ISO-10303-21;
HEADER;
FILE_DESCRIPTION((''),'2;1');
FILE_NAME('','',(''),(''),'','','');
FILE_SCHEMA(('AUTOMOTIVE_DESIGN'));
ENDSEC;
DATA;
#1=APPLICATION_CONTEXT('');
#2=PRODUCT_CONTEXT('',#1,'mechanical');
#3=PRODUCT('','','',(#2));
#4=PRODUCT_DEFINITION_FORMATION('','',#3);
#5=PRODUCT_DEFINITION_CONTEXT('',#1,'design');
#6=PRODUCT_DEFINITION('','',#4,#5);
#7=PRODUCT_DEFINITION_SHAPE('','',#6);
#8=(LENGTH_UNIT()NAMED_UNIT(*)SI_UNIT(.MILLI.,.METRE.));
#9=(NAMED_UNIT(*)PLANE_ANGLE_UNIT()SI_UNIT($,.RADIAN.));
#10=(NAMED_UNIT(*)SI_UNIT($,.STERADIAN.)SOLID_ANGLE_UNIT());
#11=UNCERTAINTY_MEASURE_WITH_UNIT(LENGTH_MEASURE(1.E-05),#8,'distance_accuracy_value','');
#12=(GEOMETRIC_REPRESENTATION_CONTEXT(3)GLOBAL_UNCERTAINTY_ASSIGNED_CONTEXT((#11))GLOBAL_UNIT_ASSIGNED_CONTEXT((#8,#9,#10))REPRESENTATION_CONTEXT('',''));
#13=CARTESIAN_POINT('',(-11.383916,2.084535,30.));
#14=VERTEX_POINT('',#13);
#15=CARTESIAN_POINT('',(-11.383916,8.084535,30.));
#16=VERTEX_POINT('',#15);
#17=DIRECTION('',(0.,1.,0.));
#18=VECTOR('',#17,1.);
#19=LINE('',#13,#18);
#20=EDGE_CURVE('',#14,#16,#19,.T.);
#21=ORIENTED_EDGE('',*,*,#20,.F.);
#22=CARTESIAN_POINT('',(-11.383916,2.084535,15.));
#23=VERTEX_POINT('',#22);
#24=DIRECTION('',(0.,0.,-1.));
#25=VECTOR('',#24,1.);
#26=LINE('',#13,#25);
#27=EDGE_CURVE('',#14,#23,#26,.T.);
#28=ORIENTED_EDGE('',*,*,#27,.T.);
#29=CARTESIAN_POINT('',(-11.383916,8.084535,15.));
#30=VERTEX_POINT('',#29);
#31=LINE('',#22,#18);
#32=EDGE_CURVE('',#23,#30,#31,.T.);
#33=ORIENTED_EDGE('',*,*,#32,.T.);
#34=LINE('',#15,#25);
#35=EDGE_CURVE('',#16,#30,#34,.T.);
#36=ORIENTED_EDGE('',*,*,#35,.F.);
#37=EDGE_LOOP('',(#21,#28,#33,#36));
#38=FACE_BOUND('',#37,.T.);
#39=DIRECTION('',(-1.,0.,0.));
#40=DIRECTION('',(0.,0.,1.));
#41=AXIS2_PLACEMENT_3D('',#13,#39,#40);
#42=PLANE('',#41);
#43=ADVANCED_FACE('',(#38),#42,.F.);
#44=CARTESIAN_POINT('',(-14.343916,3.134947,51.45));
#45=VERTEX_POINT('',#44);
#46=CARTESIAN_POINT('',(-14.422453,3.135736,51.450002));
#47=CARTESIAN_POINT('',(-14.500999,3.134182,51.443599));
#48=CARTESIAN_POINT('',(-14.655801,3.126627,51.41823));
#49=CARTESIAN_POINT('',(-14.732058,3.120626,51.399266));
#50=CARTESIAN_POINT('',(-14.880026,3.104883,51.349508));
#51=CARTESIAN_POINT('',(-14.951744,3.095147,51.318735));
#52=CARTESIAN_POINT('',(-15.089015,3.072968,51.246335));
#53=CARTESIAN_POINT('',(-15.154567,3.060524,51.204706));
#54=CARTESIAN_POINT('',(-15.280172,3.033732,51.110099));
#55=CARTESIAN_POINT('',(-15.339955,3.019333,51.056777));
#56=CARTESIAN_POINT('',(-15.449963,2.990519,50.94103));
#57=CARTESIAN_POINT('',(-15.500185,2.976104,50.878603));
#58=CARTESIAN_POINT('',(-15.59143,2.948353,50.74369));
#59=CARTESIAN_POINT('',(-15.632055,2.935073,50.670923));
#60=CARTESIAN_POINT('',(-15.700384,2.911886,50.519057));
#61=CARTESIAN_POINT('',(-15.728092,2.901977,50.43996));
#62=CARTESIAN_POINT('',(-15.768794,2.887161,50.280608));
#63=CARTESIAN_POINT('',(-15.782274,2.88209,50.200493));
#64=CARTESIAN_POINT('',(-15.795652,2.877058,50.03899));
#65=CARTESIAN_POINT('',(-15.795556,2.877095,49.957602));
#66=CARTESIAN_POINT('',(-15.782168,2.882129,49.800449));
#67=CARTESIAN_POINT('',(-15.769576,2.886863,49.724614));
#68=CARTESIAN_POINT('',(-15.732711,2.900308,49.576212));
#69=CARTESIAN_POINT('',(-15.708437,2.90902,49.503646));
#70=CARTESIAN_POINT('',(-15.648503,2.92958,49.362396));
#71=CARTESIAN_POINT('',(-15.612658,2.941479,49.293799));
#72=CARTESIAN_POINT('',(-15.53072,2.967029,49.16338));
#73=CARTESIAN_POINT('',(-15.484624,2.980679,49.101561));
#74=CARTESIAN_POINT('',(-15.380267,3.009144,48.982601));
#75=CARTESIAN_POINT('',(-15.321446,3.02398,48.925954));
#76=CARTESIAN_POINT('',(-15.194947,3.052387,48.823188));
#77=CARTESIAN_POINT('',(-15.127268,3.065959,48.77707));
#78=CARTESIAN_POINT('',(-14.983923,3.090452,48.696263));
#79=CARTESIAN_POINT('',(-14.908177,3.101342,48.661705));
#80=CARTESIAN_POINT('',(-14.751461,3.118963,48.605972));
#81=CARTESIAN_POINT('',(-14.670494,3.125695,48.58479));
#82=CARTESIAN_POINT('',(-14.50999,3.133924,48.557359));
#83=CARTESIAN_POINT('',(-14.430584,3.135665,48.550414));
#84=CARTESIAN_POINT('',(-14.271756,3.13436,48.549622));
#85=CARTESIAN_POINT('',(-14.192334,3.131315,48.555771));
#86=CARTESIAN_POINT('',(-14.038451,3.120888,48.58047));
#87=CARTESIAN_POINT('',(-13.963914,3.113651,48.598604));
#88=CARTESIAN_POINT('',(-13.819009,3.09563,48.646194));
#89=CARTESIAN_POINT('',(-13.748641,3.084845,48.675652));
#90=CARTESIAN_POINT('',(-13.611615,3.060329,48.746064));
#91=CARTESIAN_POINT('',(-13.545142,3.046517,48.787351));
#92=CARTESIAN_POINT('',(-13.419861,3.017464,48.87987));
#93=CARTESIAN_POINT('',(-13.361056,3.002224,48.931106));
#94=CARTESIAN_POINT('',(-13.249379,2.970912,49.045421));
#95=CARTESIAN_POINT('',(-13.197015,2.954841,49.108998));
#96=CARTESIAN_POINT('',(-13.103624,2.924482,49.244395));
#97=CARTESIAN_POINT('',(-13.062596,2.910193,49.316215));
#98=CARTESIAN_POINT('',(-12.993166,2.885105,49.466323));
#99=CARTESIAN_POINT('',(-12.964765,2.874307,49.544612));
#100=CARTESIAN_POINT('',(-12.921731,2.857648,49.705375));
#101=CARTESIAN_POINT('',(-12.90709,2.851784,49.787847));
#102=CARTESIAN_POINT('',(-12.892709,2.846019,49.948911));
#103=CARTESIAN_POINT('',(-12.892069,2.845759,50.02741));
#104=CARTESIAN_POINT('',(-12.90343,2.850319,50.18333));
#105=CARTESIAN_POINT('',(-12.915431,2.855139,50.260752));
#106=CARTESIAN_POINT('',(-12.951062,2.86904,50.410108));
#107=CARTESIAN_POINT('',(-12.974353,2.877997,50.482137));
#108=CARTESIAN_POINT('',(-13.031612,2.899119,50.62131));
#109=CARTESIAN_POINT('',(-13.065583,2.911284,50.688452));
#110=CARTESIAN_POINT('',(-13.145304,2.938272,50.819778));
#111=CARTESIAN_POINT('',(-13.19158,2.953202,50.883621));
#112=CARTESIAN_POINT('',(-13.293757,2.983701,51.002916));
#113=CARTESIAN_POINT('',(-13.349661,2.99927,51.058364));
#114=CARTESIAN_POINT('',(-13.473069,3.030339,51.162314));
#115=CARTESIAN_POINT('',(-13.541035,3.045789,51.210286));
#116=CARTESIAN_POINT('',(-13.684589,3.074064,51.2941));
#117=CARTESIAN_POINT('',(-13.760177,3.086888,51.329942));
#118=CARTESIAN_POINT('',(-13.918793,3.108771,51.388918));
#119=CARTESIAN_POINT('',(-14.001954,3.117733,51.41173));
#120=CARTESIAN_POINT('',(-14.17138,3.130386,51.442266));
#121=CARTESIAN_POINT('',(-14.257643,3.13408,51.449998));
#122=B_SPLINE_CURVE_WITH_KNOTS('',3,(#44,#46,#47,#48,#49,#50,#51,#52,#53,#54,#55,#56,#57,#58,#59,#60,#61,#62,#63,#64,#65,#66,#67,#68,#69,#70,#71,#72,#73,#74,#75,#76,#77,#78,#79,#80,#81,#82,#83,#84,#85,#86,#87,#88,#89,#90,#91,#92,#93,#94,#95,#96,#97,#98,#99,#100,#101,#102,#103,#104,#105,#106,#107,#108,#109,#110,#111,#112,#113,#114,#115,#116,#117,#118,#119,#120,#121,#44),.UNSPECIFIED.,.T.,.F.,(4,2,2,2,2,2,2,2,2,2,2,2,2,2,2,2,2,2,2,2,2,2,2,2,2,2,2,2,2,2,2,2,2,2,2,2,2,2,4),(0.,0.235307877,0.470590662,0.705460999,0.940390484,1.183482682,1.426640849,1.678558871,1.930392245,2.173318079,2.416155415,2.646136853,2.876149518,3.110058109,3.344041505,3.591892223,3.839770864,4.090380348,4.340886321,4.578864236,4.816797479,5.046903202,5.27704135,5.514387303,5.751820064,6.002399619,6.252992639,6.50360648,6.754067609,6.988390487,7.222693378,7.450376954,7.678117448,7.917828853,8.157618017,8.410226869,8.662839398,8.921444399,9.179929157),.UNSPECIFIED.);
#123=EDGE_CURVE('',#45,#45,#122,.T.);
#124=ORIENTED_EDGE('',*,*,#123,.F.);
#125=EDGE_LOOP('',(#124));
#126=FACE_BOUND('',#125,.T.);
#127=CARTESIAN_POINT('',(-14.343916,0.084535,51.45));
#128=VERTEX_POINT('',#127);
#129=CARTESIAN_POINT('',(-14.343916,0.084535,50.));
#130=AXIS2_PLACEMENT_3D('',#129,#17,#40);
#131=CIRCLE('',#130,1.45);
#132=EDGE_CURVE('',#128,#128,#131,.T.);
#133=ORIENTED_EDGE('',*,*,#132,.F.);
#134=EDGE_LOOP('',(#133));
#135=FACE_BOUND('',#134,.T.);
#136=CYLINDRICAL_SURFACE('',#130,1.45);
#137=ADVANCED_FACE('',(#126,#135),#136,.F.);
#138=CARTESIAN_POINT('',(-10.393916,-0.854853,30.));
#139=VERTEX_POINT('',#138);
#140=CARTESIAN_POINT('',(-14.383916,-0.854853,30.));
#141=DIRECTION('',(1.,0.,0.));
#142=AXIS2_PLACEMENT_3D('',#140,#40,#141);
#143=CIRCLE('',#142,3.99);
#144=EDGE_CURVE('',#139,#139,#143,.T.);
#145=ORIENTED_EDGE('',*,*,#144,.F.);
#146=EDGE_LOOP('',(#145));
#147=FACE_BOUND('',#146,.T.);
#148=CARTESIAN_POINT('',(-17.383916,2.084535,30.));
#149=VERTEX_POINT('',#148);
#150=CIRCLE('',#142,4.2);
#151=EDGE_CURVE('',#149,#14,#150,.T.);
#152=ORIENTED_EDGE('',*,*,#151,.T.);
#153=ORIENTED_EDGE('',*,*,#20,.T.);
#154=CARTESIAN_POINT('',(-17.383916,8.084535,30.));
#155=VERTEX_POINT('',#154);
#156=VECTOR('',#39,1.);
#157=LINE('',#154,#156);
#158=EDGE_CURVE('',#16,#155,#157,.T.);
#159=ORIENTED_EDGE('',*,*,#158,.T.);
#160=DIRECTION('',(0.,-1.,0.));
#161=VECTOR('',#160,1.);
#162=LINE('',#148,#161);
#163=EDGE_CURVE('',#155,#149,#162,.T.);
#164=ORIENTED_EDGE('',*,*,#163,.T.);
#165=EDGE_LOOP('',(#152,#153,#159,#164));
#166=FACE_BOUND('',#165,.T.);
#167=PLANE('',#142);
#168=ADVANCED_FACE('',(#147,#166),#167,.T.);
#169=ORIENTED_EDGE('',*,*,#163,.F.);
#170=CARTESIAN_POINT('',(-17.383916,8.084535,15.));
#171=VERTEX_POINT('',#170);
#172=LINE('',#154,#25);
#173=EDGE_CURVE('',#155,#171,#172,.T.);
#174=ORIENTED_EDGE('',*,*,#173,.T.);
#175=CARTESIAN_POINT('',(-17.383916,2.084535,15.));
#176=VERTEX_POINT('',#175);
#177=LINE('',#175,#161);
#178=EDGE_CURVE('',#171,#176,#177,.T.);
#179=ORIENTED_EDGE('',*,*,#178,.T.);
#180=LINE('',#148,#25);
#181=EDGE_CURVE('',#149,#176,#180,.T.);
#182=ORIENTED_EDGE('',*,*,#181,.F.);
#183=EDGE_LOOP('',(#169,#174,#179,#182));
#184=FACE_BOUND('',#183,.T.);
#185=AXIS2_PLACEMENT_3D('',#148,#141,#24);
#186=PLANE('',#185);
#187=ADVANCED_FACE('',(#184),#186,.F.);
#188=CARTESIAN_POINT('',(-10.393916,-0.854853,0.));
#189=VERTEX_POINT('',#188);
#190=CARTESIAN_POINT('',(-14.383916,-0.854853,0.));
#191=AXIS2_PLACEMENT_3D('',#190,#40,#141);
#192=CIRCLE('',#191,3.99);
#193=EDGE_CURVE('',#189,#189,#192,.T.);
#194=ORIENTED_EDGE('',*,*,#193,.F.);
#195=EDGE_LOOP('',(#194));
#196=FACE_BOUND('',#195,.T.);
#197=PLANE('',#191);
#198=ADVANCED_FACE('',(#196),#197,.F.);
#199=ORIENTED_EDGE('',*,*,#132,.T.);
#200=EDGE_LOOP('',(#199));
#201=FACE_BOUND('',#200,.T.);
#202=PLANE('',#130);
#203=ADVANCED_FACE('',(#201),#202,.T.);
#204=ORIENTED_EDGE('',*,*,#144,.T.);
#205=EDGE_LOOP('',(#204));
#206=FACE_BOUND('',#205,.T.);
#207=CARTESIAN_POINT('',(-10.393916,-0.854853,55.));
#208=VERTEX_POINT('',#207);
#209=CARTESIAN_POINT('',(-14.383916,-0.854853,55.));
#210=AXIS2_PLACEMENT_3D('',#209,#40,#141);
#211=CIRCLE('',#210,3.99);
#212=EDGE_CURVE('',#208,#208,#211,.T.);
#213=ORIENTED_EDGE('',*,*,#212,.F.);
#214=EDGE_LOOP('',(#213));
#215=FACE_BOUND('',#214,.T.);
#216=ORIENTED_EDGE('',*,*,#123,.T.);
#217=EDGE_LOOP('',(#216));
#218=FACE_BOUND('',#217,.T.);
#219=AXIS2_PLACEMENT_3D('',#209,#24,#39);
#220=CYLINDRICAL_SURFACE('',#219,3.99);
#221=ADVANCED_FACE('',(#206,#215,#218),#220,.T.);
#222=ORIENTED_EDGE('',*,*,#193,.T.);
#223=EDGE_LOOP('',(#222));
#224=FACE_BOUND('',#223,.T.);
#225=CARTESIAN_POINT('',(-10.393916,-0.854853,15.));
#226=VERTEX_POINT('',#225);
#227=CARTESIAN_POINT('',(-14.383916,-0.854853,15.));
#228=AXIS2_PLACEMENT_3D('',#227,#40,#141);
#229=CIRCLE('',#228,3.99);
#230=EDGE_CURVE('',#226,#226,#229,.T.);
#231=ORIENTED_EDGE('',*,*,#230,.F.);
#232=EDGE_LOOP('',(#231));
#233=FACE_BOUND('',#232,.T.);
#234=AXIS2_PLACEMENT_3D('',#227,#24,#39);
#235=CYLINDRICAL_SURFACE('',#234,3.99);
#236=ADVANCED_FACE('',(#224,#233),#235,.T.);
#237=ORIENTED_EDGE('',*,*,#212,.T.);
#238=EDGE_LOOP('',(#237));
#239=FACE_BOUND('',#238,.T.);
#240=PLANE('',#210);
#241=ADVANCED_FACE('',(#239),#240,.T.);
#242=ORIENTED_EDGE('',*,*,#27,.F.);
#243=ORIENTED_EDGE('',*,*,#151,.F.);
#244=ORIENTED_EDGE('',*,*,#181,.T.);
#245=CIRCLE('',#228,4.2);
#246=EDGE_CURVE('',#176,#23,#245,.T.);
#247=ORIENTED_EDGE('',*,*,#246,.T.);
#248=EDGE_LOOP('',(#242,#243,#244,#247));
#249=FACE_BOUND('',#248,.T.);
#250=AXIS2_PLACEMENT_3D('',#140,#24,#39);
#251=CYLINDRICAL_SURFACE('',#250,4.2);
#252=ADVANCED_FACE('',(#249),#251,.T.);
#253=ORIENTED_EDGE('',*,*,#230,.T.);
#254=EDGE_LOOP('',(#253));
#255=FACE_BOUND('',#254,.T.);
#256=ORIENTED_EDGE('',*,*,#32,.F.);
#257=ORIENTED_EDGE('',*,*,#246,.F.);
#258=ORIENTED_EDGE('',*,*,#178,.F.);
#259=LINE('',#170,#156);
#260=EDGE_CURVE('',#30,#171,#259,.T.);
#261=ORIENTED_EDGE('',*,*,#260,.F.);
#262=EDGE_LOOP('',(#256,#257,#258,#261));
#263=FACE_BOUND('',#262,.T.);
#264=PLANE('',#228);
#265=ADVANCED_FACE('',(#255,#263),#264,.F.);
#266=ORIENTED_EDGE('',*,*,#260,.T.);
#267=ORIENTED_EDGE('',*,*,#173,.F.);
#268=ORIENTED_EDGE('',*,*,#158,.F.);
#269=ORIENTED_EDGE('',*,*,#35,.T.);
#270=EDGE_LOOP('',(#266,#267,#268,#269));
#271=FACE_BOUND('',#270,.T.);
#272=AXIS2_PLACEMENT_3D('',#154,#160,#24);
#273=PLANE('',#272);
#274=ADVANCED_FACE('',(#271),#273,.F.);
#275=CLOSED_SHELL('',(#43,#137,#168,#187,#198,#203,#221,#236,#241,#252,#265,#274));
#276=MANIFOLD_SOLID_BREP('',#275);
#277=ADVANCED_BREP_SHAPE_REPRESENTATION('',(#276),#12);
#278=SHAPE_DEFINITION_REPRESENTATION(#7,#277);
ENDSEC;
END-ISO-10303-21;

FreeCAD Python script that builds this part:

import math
import FreeCAD as App
import Part
import Sketcher
from FreeCAD import Vector
Q = App.Units.Quantity

doc = App.newDocument("Part")
params = doc.addObject("Spreadsheet::Sheet", "Params")
for row, (alias, value) in enumerate([
    ("sketch1_diameter", "7.98 mm"),
    ("pad1_length", "15 mm"),
    ("sketch2_radius", "4.2 mm"),
    ("sketch2_width", "6 mm"),
    ("pad2_length", "15 mm"),
    ("sketch3_diameter", "7.98 mm"),
    ("pad3_length", "25 mm"),
    ("sketch4_diameter", "2.9 mm"),
    ("pocket1_length", "8 mm"),
], start=1):
    params.set(f"A{row}", alias)
    params.set(f"B{row}", "=" + value)
    params.setAlias(f"B{row}", alias)

body = doc.addObject("PartDesign::Body", "Body")

# Sketch on XY plane
sketch1 = doc.addObject("Sketcher::SketchObject", "Sketch")
body.addObject(sketch1)
sketch1.AttachmentSupport = (doc.XY_Plane, [""])
sketch1.MapMode = "FlatFace"
sketch1.addGeometry(Part.Circle(Vector(-14.4, -0.9, 0), Vector(0, 0, 1), 4), False)
sketch1.addConstraint([
    Sketcher.Constraint("Diameter", 0, Q("7.98 mm")),
    Sketcher.Constraint("DistanceX", 0, 3, -1, 1, Q("14.383916 mm")),
    Sketcher.Constraint("DistanceY", 0, 3, -1, 1, Q("0.854853 mm")),
])
sketch1.setExpression("Constraints[0]", "Params.sketch1_diameter")
pad1 = doc.addObject("PartDesign::Pad", "Pad")
body.addObject(pad1)
pad1.Profile = sketch1
pad1.setExpression("Length", "Params.pad1_length")

# Sketch on XY plane
sketch2 = doc.addObject("Sketcher::SketchObject", "Sketch001")
body.addObject(sketch2)
sketch2.AttachmentSupport = (doc.XY_Plane, [""])
sketch2.MapMode = "FlatFace"
sketch2.AttachmentOffset = App.Placement(Vector(0, 0, 15), App.Rotation())
sketch2.addGeometry([
    Part.LineSegment(Vector(-17.4, 8.1, 0), Vector(-17.4, 2.1, 0)),
    Part.ArcOfCircle(Part.Circle(Vector(-14.4, -0.9, 0), Vector(0, 0, 1), 4.2), math.radians(136), math.radians(404)),
    Part.LineSegment(Vector(-11.4, 2.1, 0), Vector(-11.4, 8.1, 0)),
    Part.LineSegment(Vector(-11.4, 8.1, 0), Vector(-17.4, 8.1, 0)),
], False)
sketch2.addConstraint([
    Sketcher.Constraint("Coincident", 0, 2, 1, 1),
    Sketcher.Constraint("Coincident", 1, 2, 2, 1),
    Sketcher.Constraint("Coincident", 2, 2, 3, 1),
    Sketcher.Constraint("Coincident", 3, 2, 0, 1),
    Sketcher.Constraint("Vertical", 0),
    Sketcher.Constraint("Vertical", 2),
    Sketcher.Constraint("Horizontal", 3),
    Sketcher.Constraint("Horizontal", 0, 2, 1, 2),
    Sketcher.Constraint("Equal", 3, 0),
    Sketcher.Constraint("Radius", 1, Q("4.2 mm")),
    Sketcher.Constraint("DistanceX", 3, 2, 3, 1, Q("6 mm")),
    Sketcher.Constraint("DistanceX", 1, 3, -1, 1, Q("14.383916 mm")),
    Sketcher.Constraint("DistanceY", 1, 3, -1, 1, Q("0.854853 mm")),
])
sketch2.setExpression("Constraints[9]", "Params.sketch2_radius")
sketch2.setExpression("Constraints[10]", "Params.sketch2_width")
pad2 = doc.addObject("PartDesign::Pad", "Pad001")
body.addObject(pad2)
pad2.Profile = sketch2
pad2.setExpression("Length", "Params.pad2_length")

# Sketch on XY plane
sketch3 = doc.addObject("Sketcher::SketchObject", "Sketch002")
body.addObject(sketch3)
sketch3.AttachmentSupport = (doc.XY_Plane, [""])
sketch3.MapMode = "FlatFace"
sketch3.AttachmentOffset = App.Placement(Vector(0, 0, 30), App.Rotation())
sketch3.addGeometry(Part.Circle(Vector(-14.4, -0.9, 0), Vector(0, 0, 1), 4), False)
sketch3.addConstraint([
    Sketcher.Constraint("Diameter", 0, Q("7.98 mm")),
    Sketcher.Constraint("DistanceX", 0, 3, -1, 1, Q("14.383916 mm")),
    Sketcher.Constraint("DistanceY", 0, 3, -1, 1, Q("0.854853 mm")),
])
sketch3.setExpression("Constraints[0]", "Params.sketch3_diameter")
pad3 = doc.addObject("PartDesign::Pad", "Pad002")
body.addObject(pad3)
pad3.Profile = sketch3
pad3.setExpression("Length", "Params.pad3_length")

# Sketch on XZ plane
sketch4 = doc.addObject("Sketcher::SketchObject", "Sketch003")
body.addObject(sketch4)
sketch4.AttachmentSupport = (doc.XZ_Plane, [""])
sketch4.MapMode = "FlatFace"
sketch4.AttachmentOffset = App.Placement(Vector(0, 0, -8.084535), App.Rotation())
sketch4.addGeometry(Part.Circle(Vector(-14.3, 50, 0), Vector(0, 0, 1), 1.4), False)
sketch4.addConstraint([
    Sketcher.Constraint("Diameter", 0, Q("2.9 mm")),
    Sketcher.Constraint("DistanceY", -1, 1, 0, 3, Q("50 mm")),
    Sketcher.Constraint("DistanceX", 0, 3, -1, 1, Q("14.343916 mm")),
])
sketch4.setExpression("Constraints[0]", "Params.sketch4_diameter")
pocket1 = doc.addObject("PartDesign::Pocket", "Pocket")
body.addObject(pocket1)
pocket1.Profile = sketch4
pocket1.setExpression("Length", "Params.pocket1_length")
pocket1.Reversed = True

doc.recompute()
